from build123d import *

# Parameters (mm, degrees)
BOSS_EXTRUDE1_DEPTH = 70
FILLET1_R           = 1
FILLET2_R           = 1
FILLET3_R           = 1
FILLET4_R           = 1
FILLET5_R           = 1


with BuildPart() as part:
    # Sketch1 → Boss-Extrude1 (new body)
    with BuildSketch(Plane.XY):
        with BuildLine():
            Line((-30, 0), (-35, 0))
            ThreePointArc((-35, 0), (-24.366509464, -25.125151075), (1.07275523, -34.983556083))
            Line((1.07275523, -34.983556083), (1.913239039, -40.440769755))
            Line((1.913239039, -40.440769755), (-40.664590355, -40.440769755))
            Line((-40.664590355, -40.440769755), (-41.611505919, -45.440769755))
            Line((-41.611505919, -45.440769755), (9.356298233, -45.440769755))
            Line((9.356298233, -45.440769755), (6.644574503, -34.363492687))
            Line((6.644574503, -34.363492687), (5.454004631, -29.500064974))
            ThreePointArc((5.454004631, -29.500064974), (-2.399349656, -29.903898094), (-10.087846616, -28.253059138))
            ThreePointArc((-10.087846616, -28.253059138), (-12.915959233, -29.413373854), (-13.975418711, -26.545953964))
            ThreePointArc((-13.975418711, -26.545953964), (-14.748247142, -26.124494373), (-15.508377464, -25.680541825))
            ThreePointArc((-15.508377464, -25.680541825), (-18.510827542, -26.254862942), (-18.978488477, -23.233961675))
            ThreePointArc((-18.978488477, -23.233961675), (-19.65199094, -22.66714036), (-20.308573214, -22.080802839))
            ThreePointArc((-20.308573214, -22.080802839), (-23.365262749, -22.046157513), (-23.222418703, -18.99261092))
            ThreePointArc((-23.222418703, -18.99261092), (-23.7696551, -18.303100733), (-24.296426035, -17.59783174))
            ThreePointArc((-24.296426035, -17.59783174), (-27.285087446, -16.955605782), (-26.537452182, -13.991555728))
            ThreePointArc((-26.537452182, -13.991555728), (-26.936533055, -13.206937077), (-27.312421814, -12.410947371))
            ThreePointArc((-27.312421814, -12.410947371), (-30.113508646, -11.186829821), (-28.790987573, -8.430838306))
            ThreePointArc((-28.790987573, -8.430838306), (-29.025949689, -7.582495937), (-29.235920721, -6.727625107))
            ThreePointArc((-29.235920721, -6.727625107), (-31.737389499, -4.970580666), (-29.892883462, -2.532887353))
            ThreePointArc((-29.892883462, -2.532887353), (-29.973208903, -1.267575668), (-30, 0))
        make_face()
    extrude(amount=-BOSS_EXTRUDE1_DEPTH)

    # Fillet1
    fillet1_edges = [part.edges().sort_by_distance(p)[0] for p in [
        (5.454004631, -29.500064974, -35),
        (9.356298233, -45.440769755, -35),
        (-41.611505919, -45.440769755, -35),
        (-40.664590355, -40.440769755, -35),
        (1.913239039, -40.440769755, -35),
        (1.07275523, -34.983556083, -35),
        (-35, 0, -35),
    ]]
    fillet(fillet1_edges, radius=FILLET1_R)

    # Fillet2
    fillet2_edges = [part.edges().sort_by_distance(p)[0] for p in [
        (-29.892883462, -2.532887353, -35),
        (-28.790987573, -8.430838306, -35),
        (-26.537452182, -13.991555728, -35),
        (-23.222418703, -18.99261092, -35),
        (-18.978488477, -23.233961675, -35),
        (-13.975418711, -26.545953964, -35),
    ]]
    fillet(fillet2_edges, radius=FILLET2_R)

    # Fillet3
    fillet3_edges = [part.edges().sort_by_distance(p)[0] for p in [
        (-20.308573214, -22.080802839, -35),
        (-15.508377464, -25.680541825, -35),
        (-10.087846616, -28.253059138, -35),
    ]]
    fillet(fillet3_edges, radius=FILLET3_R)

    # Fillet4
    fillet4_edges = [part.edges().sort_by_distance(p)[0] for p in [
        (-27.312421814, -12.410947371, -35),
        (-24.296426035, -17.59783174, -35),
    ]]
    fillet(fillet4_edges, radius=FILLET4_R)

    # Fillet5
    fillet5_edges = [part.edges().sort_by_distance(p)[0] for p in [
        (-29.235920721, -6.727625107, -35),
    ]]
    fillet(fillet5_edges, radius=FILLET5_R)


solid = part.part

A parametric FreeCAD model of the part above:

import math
import FreeCAD as App
import Part
import Sketcher

V = App.Vector


def edges_at(feature, points):
    """Names of the edges that pass closest to the given points."""
    edges = feature.Shape.Edges
    near = lambda p: min(range(len(edges)), key=lambda i: edges[i].distToShape(Part.Vertex(*p))[0])
    return sorted({f"Edge{near(p) + 1}" for p in points})

doc = App.newDocument("Part")
params = doc.addObject("Spreadsheet::Sheet", "Params")
for row, (alias, value) in enumerate([
    ("sketch1_radius", "35 mm"),
    ("sketch1_radius2", "30 mm"),
    ("pad1_length", "70 mm"),
    ("fillet_radius", "1 mm"),
    ("fillet2_radius", "1 mm"),
    ("fillet3_radius", "1 mm"),
    ("fillet4_radius", "1 mm"),
    ("fillet5_radius", "1 mm"),
], start=1):
    params.set(f"A{row}", alias)
    params.set(f"B{row}", "=" + value)
    params.setAlias(f"B{row}", alias)

body = doc.addObject("PartDesign::Body", "Body")

sketch1 = body.newObject("Sketcher::SketchObject", "Sketch")
sketch1.AttachmentSupport = (doc.getObject("XY_Plane"), [""])
sketch1.MapMode = "FlatFace"
sketch1.addGeometry([
    Part.LineSegment(V(-30, 0, 0), V(-35, 0, 0)),
    Part.ArcOfCircle(Part.Circle(V(0, 0, 0), V(0, 0, 1), 35), math.radians(180), math.radians(272)),
    Part.LineSegment(V(1.1, -35, 0), V(1.9, -40.4, 0)),
    Part.LineSegment(V(1.9, -40.4, 0), V(-40.7, -40.4, 0)),
    Part.LineSegment(V(-40.7, -40.4, 0), V(-41.6, -45.4, 0)),
    Part.LineSegment(V(-41.6, -45.4, 0), V(9.4, -45.4, 0)),
    Part.LineSegment(V(9.4, -45.4, 0), V(6.6, -34.4, 0)),
    Part.LineSegment(V(6.6, -34.4, 0), V(5.5, -29.5, 0)),
    Part.ArcOfCircle(Part.Circle(V(0, 0, 0), V(0, 0, 1), 30), math.radians(-110), math.radians(-80)),
    Part.ArcOfCircle(Part.Circle(V(-12.1, -27.5, 0), V(0, 0, 1), 2.1), math.radians(154), math.radians(338)),
    Part.ArcOfCircle(Part.Circle(V(0, 0, 0), V(0, 0, 1), 30), math.radians(-121.13), math.radians(-117.77)),
    Part.ArcOfCircle(Part.Circle(V(-17.3, -24.5, 0), V(0, 0, 1), 2.1), math.radians(143), math.radians(327)),
    Part.ArcOfCircle(Part.Circle(V(0, 0, 0), V(0, 0, 1), 30), math.radians(-132.61), math.radians(-129.24)),
    Part.ArcOfCircle(Part.Circle(V(-21.8, -20.6, 0), V(0, 0, 1), 2.1), math.radians(131), math.radians(315)),
    Part.ArcOfCircle(Part.Circle(V(0, 0, 0), V(0, 0, 1), 30), math.radians(-144.08), math.radians(-140.72)),
    Part.ArcOfCircle(Part.Circle(V(-25.5, -15.8, 0), V(0, 0, 1), 2.1), math.radians(120), math.radians(304)),
    Part.ArcOfCircle(Part.Circle(V(0, 0, 0), V(0, 0, 1), 30), math.radians(-155.56), math.radians(-152.2)),
    Part.ArcOfCircle(Part.Circle(V(-28.1, -10.4, 0), V(0, 0, 1), 2.1), math.radians(108), math.radians(292)),
    Part.ArcOfCircle(Part.Circle(V(0, 0, 0), V(0, 0, 1), 30), math.radians(-167.04), math.radians(-163.68)),
    Part.ArcOfCircle(Part.Circle(V(-29.6, -4.6, 0), V(0, 0, 1), 2.1), math.radians(97), math.radians(281)),
    Part.ArcOfCircle(Part.Circle(V(0, 0, 0), V(0, 0, 1), 30), math.radians(180), math.radians(184.84)),
], False)
sketch1.addConstraint([
    Sketcher.Constraint("Coincident", 0, 2, 1, 1),
    Sketcher.Constraint("Coincident", 1, 2, 2, 1),
    Sketcher.Constraint("Coincident", 2, 2, 3, 1),
    Sketcher.Constraint("Coincident", 3, 2, 4, 1),
    Sketcher.Constraint("Coincident", 4, 2, 5, 1),
    Sketcher.Constraint("Coincident", 5, 2, 6, 1),
    Sketcher.Constraint("Coincident", 6, 2, 7, 1),
    Sketcher.Constraint("Coincident", 7, 2, 8, 2),
    Sketcher.Constraint("Coincident", 8, 1, 9, 2),
    Sketcher.Constraint("Coincident", 9, 1, 10, 2),
    Sketcher.Constraint("Coincident", 10, 1, 11, 2),
    Sketcher.Constraint("Coincident", 11, 1, 12, 2),
    Sketcher.Constraint("Coincident", 12, 1, 13, 2),
    Sketcher.Constraint("Coincident", 13, 1, 14, 2),
    Sketcher.Constraint("Coincident", 14, 1, 15, 2),
    Sketcher.Constraint("Coincident", 15, 1, 16, 2),
    Sketcher.Constraint("Coincident", 16, 1, 17, 2),
    Sketcher.Constraint("Coincident", 17, 1, 18, 2),
    Sketcher.Constraint("Coincident", 18, 1, 19, 2),
    Sketcher.Constraint("Coincident", 19, 1, 20, 2),
    Sketcher.Constraint("Coincident", 20, 1, 0, 1),
    Sketcher.Constraint("Horizontal", 0),
    Sketcher.Constraint("Horizontal", 3),
    Sketcher.Constraint("Horizontal", 5),
    Sketcher.Constraint("Coincident", 1, 3, -1, 1),
    Sketcher.Constraint("Coincident", 8, 3, -1, 1),
    Sketcher.Constraint("Coincident", 10, 3, -1, 1),
    Sketcher.Constraint("Coincident", 12, 3, -1, 1),
    Sketcher.Constraint("Coincident", 14, 3, -1, 1),
    Sketcher.Constraint("Coincident", 16, 3, -1, 1),
    Sketcher.Constraint("Coincident", 18, 3, -1, 1),
    Sketcher.Constraint("Coincident", 20, 3, -1, 1),
    Sketcher.Constraint("Equal", 8, 10),
    Sketcher.Constraint("Equal", 9, 11),
    Sketcher.Constraint("Equal", 10, 12),
    Sketcher.Constraint("Equal", 11, 13),
    Sketcher.Constraint("Equal", 12, 14),
    Sketcher.Constraint("Equal", 13, 15),
    Sketcher.Constraint("Equal", 14, 16),
    Sketcher.Constraint("Equal", 15, 17),
    Sketcher.Constraint("Equal", 16, 18),
    Sketcher.Constraint("Equal", 17, 19),
    Sketcher.Constraint("Equal", 18, 20),
    Sketcher.Constraint("PointOnObject", 0, 2, -1),
    Sketcher.Constraint("Parallel", 6, 7),
    Sketcher.Constraint("Radius", 1, 35.0),
    Sketcher.Constraint("Radius", 8, 30.0),
    Sketcher.Constraint("DistanceY", 4, 2, 3, 2, 5.0),
    Sketcher.Constraint("Radius", 9, 2.124268),
    Sketcher.Constraint("DistanceX", 3, 2, 3, 1, 42.577829),
    Sketcher.Constraint("DistanceX", 13, 3, -1, 1, 21.820198),
    Sketcher.Constraint("DistanceX", -1, 1, 5, 2, 9.356298),
    Sketcher.Constraint("DistanceX", 11, 3, 9, 3, 5.224899),
    Sketcher.Constraint("DistanceY", 11, 3, 13, 3, 3.930398),
    Sketcher.Constraint("DistanceX", 19, 3, 17, 3, 1.516499),
    Sketcher.Constraint("DistanceY", 2, 2, 9, 3, 12.972401),
    Sketcher.Constraint("DistanceX", 8, 1, 1, 2, 11.160602),
    Sketcher.Constraint("DistanceX", 15, 3, 9, 1, 11.5054),
    Sketcher.Constraint("DistanceX", 15, 3, 13, 1, 2.2584),
    Sketcher.Constraint("DistanceX", 18, 1, 16, 1, 1.923499),
    Sketcher.Constraint("DistanceX", 5, 1, 5, 2, 50.967804),
    Sketcher.Constraint("DistanceX", 9, 3, -1, 1, 12.061871),
    Sketcher.Constraint("DistanceY", 9, 3, -1, 1, 27.468368),
    Sketcher.Constraint("DistanceY", 15, 3, -1, 1, 15.83439),
    Sketcher.Constraint("DistanceX", -1, 1, 2, 2, 1.913239),
    Sketcher.Constraint("DistanceX", 16, 1, -1, 1, 27.312422),
    Sketcher.Constraint("DistanceY", 17, 1, -1, 1, 8.430838),
    Sketcher.Constraint("DistanceX", 1, 2, 6, 2, 5.571819),
    Sketcher.Constraint("DistanceX", 7, 2, 6, 2, 1.19057),
])
sketch1.setExpression("Constraints[45]", "Params.sketch1_radius")
sketch1.setExpression("Constraints[46]", "Params.sketch1_radius2")
pad1 = body.newObject("PartDesign::Pad", "Pad")
pad1.Profile = sketch1
pad1.setExpression("Length", "Params.pad1_length")
pad1.Reversed = True
doc.recompute()

fillet = body.newObject("PartDesign::Fillet", "Fillet")
fillet.Base = (pad1, edges_at(pad1, [
    (5.454, -29.5, -35),
    (9.356, -45.441, -35),
    (-41.612, -45.441, -35),
    (-40.665, -40.441, -35),
    (1.913, -40.441, -35),
    (1.073, -34.984, -35),
    (-35, 0, -35),
]))
fillet.setExpression("Radius", "Params.fillet_radius")
doc.recompute()

fillet2 = body.newObject("PartDesign::Fillet", "Fillet001")
fillet2.Base = (fillet, edges_at(fillet, [
    (-29.893, -2.533, -35),
    (-28.791, -8.431, -35),
    (-26.537, -13.992, -35),
    (-23.222, -18.993, -35),
    (-18.978, -23.234, -35),
    (-13.975, -26.546, -35),
]))
fillet2.setExpression("Radius", "Params.fillet2_radius")
doc.recompute()

fillet3 = body.newObject("PartDesign::Fillet", "Fillet002")
fillet3.Base = (fillet2, edges_at(fillet2, [(-20.309, -22.081, -35), (-15.508, -25.681, -35), (-10.088, -28.253, -35)]))
fillet3.setExpression("Radius", "Params.fillet3_radius")
doc.recompute()

fillet4 = body.newObject("PartDesign::Fillet", "Fillet003")
fillet4.Base = (fillet3, edges_at(fillet3, [(-27.312, -12.411, -35), (-24.296, -17.598, -35)]))
fillet4.setExpression("Radius", "Params.fillet4_radius")
doc.recompute()

fillet5 = body.newObject("PartDesign::Fillet", "Fillet004")
fillet5.Base = (fillet4, edges_at(fillet4, [(-29.236, -6.728, -35)]))
fillet5.setExpression("Radius", "Params.fillet5_radius")

doc.recompute()
